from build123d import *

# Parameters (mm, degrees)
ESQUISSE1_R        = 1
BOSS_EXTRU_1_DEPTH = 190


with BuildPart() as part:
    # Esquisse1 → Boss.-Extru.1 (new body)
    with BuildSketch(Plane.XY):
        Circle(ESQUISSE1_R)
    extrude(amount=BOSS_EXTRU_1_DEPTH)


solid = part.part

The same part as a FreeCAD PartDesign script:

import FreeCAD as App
import Part
import Sketcher

V = App.Vector
Q = App.Units.Quantity

doc = App.newDocument("Part")
body = doc.addObject("PartDesign::Body", "Body")

# Sketch on XY plane
sketch1 = doc.addObject("Sketcher::SketchObject", "Sketch")
body.addObject(sketch1)
sketch1.AttachmentSupport = (doc.XY_Plane, [""])
sketch1.MapMode = "FlatFace"
sketch1.addGeometry(Part.Circle(V(0, 0, 0), V(0, 0, 1), 1), False)
sketch1.addConstraint(Sketcher.Constraint("Coincident", 0, 3, -1, 1))
sketch1.addConstraint(Sketcher.Constraint("Diameter", 0, Q("2 mm")))
pad1 = doc.addObject("PartDesign::Pad", "Pad")
body.addObject(pad1)
pad1.Profile = sketch1
pad1.Length = 190

doc.recompute()
